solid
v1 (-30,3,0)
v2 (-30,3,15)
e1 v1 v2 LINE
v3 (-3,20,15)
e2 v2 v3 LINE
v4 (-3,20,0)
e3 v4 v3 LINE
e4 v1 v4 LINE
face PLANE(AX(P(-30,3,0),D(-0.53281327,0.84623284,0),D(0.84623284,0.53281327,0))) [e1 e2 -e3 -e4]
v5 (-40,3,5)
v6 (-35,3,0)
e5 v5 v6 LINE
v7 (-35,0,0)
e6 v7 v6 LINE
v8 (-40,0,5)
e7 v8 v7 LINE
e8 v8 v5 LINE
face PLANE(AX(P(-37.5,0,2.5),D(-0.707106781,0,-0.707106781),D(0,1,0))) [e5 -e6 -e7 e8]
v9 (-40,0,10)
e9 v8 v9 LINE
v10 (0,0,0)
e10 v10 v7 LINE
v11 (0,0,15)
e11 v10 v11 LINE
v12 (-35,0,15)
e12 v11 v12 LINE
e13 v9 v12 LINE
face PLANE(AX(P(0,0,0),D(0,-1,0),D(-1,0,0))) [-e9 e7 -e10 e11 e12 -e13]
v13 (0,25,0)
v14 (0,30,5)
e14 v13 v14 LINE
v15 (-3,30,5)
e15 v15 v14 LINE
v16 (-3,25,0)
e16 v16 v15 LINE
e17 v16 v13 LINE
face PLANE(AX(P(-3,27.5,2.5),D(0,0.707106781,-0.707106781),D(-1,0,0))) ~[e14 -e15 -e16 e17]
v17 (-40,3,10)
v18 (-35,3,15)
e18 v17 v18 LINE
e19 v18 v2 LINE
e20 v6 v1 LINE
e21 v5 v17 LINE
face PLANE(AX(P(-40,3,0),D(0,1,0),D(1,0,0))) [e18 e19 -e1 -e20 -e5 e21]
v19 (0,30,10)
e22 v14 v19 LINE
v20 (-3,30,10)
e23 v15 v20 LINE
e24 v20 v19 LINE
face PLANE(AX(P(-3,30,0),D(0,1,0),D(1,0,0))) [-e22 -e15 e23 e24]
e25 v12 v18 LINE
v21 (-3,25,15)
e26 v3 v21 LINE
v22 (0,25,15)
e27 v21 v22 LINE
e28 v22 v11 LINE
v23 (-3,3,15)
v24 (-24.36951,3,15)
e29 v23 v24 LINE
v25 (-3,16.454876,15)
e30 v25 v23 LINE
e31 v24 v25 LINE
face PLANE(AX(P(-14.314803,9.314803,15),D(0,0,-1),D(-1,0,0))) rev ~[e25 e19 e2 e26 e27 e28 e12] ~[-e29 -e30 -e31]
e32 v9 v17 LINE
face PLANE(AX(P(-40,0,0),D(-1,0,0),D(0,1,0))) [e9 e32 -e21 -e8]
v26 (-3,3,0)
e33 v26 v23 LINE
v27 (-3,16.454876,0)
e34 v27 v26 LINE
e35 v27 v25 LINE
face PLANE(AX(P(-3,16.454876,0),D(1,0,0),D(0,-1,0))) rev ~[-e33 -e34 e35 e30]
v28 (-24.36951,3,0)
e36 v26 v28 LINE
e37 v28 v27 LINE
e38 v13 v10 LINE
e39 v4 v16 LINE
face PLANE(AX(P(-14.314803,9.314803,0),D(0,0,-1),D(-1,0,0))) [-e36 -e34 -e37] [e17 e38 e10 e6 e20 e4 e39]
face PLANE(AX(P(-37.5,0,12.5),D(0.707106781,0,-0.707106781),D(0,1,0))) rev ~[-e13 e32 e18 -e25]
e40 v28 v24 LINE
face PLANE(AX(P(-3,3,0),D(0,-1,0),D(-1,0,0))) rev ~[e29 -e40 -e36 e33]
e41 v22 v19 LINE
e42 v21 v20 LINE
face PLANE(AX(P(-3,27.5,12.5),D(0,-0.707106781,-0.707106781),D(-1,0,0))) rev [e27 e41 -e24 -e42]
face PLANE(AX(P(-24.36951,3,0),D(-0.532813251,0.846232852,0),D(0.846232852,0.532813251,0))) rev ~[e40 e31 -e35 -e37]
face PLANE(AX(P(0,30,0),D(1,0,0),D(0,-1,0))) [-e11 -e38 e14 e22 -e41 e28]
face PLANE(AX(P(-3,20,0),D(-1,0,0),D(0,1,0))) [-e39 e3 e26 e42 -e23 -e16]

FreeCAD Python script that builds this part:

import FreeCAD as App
import Part
import Sketcher

V = App.Vector


def edges_at(feature, points):
    """Names of the edges that pass closest to the given points."""
    edges = feature.Shape.Edges
    near = lambda p: min(range(len(edges)), key=lambda i: edges[i].distToShape(Part.Vertex(*p))[0])
    return sorted({f"Edge{near(p) + 1}" for p in points})


def add_polygon(sketch, points):
    """Adds a closed chain of lines whose ends are joined by coincident constraints."""
    first, n = sketch.GeometryCount, len(points)
    for a, b in zip(points, points[1:] + points[:1]):
        sketch.addGeometry(Part.LineSegment(App.Vector(*a, 0), App.Vector(*b, 0)), False)
    for i in range(n):
        sketch.addConstraint(Sketcher.Constraint("Coincident", first + i, 2, first + (i + 1) % n, 1))

doc = App.newDocument("Part")
body = doc.addObject("PartDesign::Body", "Body")

# Sketch on XY plane
sketch1 = body.newObject("Sketcher::SketchObject", "Sketch")
sketch1.AttachmentSupport = (doc.getObject("XY_Plane"), [""])
sketch1.MapMode = "FlatFace"
add_polygon(sketch1, [(-40, 0), (0, 0), (0, 30), (-3, 30), (-3, 20), (-30, 3), (-40, 3)])  # lines 0-6
add_polygon(sketch1, [(-3, 3), (-24.4, 3), (-3, 16.5)])  # lines 7-9
sketch1.addConstraint([
    Sketcher.Constraint("Horizontal", 0),
    Sketcher.Constraint("Vertical", 1),
    Sketcher.Constraint("Horizontal", 2),
    Sketcher.Constraint("Vertical", 3),
    Sketcher.Constraint("Horizontal", 5),
    Sketcher.Constraint("Vertical", 6),
    Sketcher.Constraint("Horizontal", 7),
    Sketcher.Constraint("Vertical", 9),
    Sketcher.Constraint("Coincident", 0, 2, -1, 1),
    Sketcher.Constraint("Parallel", 4, 8),
    Sketcher.Constraint("Horizontal", 5, 2, 7, 2),
    Sketcher.Constraint("Vertical", 3, 2, 8, 2),
    Sketcher.Constraint("Equal", 5, 3),
    Sketcher.Constraint("Equal", 2, 6),
    Sketcher.Constraint("DistanceX", 0, 1, 0, 2, 40.0),
    Sketcher.Constraint("DistanceX", 2, 2, 2, 1, 3.0),
    Sketcher.Constraint("DistanceX", 5, 2, 5, 1, 10.0),
    Sketcher.Constraint("DistanceY", 1, 1, 1, 2, 30.0),
    Sketcher.Constraint("DistanceX", 7, 2, 7, 1, 21.36951),
])
pad1 = body.newObject("PartDesign::Pad", "Pad")
pad1.Profile = sketch1
pad1.Length = 15
doc.recompute()

chamfer = body.newObject("PartDesign::Chamfer", "Chamfer")
chamfer.Base = (pad1, edges_at(pad1, [(-40, 1.5, 0), (-40, 1.5, 15)]))
chamfer.Size = 5
doc.recompute()

chamfer2 = body.newObject("PartDesign::Chamfer", "Chamfer001")
chamfer2.Base = (chamfer, edges_at(chamfer, [(-1.5, 30, 0), (-1.5, 30, 15)]))
chamfer2.Size = 5

doc.recompute()
